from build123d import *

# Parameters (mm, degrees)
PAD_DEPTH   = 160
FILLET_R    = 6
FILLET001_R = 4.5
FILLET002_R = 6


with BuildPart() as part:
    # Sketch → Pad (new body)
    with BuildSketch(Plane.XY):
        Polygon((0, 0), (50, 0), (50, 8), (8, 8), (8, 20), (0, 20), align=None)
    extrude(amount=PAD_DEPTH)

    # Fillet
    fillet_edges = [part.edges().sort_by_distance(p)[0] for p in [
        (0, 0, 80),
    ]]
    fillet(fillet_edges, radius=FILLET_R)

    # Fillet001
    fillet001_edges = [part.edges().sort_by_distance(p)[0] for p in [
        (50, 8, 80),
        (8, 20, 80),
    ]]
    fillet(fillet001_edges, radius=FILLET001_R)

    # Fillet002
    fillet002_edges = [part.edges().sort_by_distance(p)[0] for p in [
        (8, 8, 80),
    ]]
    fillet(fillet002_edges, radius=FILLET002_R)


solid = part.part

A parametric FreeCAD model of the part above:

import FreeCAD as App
import Part
import Sketcher


def edges_at(feature, points):
    """Names of the edges that pass closest to the given points."""
    edges = feature.Shape.Edges
    near = lambda p: min(range(len(edges)), key=lambda i: edges[i].distToShape(Part.Vertex(*p))[0])
    return sorted({f"Edge{near(p) + 1}" for p in points})

doc = App.newDocument("Part")
body = doc.addObject("PartDesign::Body", "Body")

sketch1 = doc.addObject("Sketcher::SketchObject", "Sketch")
body.addObject(sketch1)
sketch1.AttachmentSupport = (doc.XY_Plane, [""])
sketch1.MapMode = "FlatFace"
sketch1.addGeometry([
    Part.LineSegment(App.Vector(0, 0, 0), App.Vector(50, 0, 0)),
    Part.LineSegment(App.Vector(50, 0, 0), App.Vector(50, 8, 0)),
    Part.LineSegment(App.Vector(50, 8, 0), App.Vector(8, 8, 0)),
    Part.LineSegment(App.Vector(8, 8, 0), App.Vector(8, 20, 0)),
    Part.LineSegment(App.Vector(8, 20, 0), App.Vector(0, 20, 0)),
    Part.LineSegment(App.Vector(0, 20, 0), App.Vector(0, 0, 0)),
], False)
sketch1.addConstraint([
    Sketcher.Constraint("Coincident", 0, 2, 1, 1),
    Sketcher.Constraint("Coincident", 1, 2, 2, 1),
    Sketcher.Constraint("Coincident", 2, 2, 3, 1),
    Sketcher.Constraint("Coincident", 3, 2, 4, 1),
    Sketcher.Constraint("Coincident", 4, 2, 5, 1),
    Sketcher.Constraint("Coincident", 5, 2, 0, 1),
    Sketcher.Constraint("Horizontal", 0),
    Sketcher.Constraint("Vertical", 1),
    Sketcher.Constraint("Horizontal", 2),
    Sketcher.Constraint("Vertical", 3),
    Sketcher.Constraint("Horizontal", 4),
    Sketcher.Constraint("Vertical", 5),
    Sketcher.Constraint("Coincident", 5, 2, -1, 1),
    Sketcher.Constraint("Equal", 4, 1),
    Sketcher.Constraint("DistanceX", 0, 1, 0, 2, 50.0),
    Sketcher.Constraint("DistanceX", 2, 2, 2, 1, 42.0),
    Sketcher.Constraint("DistanceY", 3, 1, 3, 2, 12.0),
])
pad1 = doc.addObject("PartDesign::Pad", "Pad")
body.addObject(pad1)
pad1.Profile = sketch1
pad1.Length = 160
doc.recompute()

fillet = doc.addObject("PartDesign::Fillet", "Fillet")
body.addObject(fillet)
fillet.Base = (pad1, edges_at(pad1, [(0, 0, 80)]))
fillet.Radius = 6
doc.recompute()

fillet2 = doc.addObject("PartDesign::Fillet", "Fillet001")
body.addObject(fillet2)
fillet2.Base = (fillet, edges_at(fillet, [(50, 8, 80), (8, 20, 80)]))
fillet2.Radius = 4.5
doc.recompute()

fillet3 = doc.addObject("PartDesign::Fillet", "Fillet002")
body.addObject(fillet3)
fillet3.Base = (fillet2, edges_at(fillet2, [(8, 8, 80)]))
fillet3.Radius = 6

doc.recompute()
